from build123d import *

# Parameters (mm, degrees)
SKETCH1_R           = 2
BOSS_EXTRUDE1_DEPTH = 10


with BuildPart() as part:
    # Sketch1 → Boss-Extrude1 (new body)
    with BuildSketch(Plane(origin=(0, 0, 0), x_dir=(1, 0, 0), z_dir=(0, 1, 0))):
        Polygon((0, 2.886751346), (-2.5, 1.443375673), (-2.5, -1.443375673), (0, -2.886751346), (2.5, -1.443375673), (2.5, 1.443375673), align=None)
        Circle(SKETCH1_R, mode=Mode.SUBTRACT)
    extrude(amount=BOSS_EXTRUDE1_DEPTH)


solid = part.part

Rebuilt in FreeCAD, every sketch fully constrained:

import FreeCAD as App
import Part
import Sketcher
Q = App.Units.Quantity

doc = App.newDocument("Part")
body = doc.addObject("PartDesign::Body", "Body")

# Sketch on XZ plane
sketch1 = doc.addObject("Sketcher::SketchObject", "Sketch")
body.addObject(sketch1)
sketch1.AttachmentSupport = (doc.XZ_Plane, [""])
sketch1.MapMode = "FlatFace"
sketch1.addGeometry(Part.LineSegment(App.Vector(0, -2.9, 0), App.Vector(-2.5, -1.4, 0)), False)
sketch1.addGeometry(Part.LineSegment(App.Vector(-2.5, -1.4, 0), App.Vector(-2.5, 1.4, 0)), False)
sketch1.addGeometry(Part.LineSegment(App.Vector(-2.5, 1.4, 0), App.Vector(0, 2.9, 0)), False)
sketch1.addGeometry(Part.LineSegment(App.Vector(0, 2.9, 0), App.Vector(2.5, 1.4, 0)), False)
sketch1.addGeometry(Part.LineSegment(App.Vector(2.5, 1.4, 0), App.Vector(2.5, -1.4, 0)), False)
sketch1.addGeometry(Part.LineSegment(App.Vector(2.5, -1.4, 0), App.Vector(0, -2.9, 0)), False)
sketch1.addGeometry(Part.Circle(App.Vector(0, 0, 0), App.Vector(0, 0, 1), 2), False)
sketch1.addConstraint(Sketcher.Constraint("Coincident", 0, 2, 1, 1))
sketch1.addConstraint(Sketcher.Constraint("Coincident", 1, 2, 2, 1))
sketch1.addConstraint(Sketcher.Constraint("Coincident", 2, 2, 3, 1))
sketch1.addConstraint(Sketcher.Constraint("Coincident", 3, 2, 4, 1))
sketch1.addConstraint(Sketcher.Constraint("Coincident", 4, 2, 5, 1))
sketch1.addConstraint(Sketcher.Constraint("Coincident", 5, 2, 0, 1))
sketch1.addConstraint(Sketcher.Constraint("Vertical", 1))
sketch1.addConstraint(Sketcher.Constraint("Vertical", 4))
sketch1.addConstraint(Sketcher.Constraint("Coincident", 6, 3, -1, 1))
sketch1.addConstraint(Sketcher.Constraint("Symmetric", 0, 2, 3, 2, -1, 1))
sketch1.addConstraint(Sketcher.Constraint("Symmetric", 2, 2, 5, 2, -1, 1))
sketch1.addConstraint(Sketcher.Constraint("PointOnObject", 2, 2, -2))
sketch1.addConstraint(Sketcher.Constraint("Parallel", 2, 5))
sketch1.addConstraint(Sketcher.Constraint("Horizontal", 1, 2, 3, 2))
sketch1.addConstraint(Sketcher.Constraint("Diameter", 6, 4.0))
sketch1.addConstraint(Sketcher.Constraint("Angle", 0, Q("150 deg")))
sketch1.addConstraint(Sketcher.Constraint("DistanceX", 1, 2, 3, 2, 5.0))
sketch1.addConstraint(Sketcher.Constraint("DistanceY", 1, 1, 1, 2, 2.886751))
pad1 = doc.addObject("PartDesign::Pad", "Pad")
body.addObject(pad1)
pad1.Profile = sketch1
pad1.Length = 10
pad1.Reversed = True

doc.recompute()
